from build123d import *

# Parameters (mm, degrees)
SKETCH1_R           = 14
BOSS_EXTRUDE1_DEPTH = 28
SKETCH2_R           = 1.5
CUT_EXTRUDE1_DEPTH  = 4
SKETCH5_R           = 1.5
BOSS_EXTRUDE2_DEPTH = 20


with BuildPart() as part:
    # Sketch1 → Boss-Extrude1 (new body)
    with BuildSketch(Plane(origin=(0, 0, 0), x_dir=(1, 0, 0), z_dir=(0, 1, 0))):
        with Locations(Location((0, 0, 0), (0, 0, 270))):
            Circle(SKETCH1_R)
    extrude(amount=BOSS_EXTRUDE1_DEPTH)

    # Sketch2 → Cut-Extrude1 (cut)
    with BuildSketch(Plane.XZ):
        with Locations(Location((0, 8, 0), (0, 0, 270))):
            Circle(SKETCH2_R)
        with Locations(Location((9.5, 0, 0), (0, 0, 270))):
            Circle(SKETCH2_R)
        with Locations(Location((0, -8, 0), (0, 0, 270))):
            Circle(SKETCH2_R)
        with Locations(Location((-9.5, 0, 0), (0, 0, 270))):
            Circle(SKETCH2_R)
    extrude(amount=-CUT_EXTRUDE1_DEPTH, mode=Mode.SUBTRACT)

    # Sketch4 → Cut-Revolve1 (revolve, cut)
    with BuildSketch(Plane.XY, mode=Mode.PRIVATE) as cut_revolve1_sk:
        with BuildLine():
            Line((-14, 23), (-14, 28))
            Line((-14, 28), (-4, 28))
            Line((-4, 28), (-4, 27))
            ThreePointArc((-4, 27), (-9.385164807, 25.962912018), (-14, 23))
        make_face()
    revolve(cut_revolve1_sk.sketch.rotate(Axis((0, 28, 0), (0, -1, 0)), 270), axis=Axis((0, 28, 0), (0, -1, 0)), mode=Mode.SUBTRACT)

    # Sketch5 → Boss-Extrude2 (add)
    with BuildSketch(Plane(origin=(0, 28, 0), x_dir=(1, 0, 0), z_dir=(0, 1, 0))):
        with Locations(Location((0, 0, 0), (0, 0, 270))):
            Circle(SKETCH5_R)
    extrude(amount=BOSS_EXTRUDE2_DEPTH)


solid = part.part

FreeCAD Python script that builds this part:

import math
import FreeCAD as App
import Part
import Sketcher
from FreeCAD import Vector
Q = App.Units.Quantity

doc = App.newDocument("Part")
body = doc.addObject("PartDesign::Body", "Body")

# Sketch on XZ plane
sketch1 = body.newObject("Sketcher::SketchObject", "Sketch")
sketch1.AttachmentSupport = (doc.getObject("XZ_Plane"), [""])
sketch1.MapMode = "FlatFace"
sketch1.addGeometry(Part.Circle(Vector(0, 0, 0), Vector(0, 0, 1), 14), False)
sketch1.addConstraint([
    Sketcher.Constraint("Coincident", 0, 3, -1, 1),
    Sketcher.Constraint("Diameter", 0, Q("28 mm")),
])
pad1 = body.newObject("PartDesign::Pad", "Pad")
pad1.Profile = sketch1
pad1.Length = 28
pad1.Reversed = True

# Sketch on XZ plane
sketch2 = body.newObject("Sketcher::SketchObject", "Sketch001")
sketch2.AttachmentSupport = (doc.getObject("XZ_Plane"), [""])
sketch2.MapMode = "FlatFace"
sketch2.addGeometry([
    Part.Circle(Vector(0, 8, 0), Vector(0, 0, 1), 1.5),
    Part.Circle(Vector(9.5, 0, 0), Vector(0, 0, 1), 1.5),
    Part.Circle(Vector(0, -8, 0), Vector(0, 0, 1), 1.5),
    Part.Circle(Vector(-9.5, 0, 0), Vector(0, 0, 1), 1.5),
], False)
sketch2.addConstraint([
    Sketcher.Constraint("Equal", 0, 1),
    Sketcher.Constraint("Equal", 1, 2),
    Sketcher.Constraint("Equal", 2, 3),
    Sketcher.Constraint("Symmetric", 0, 3, 2, 3, -1, 1),
    Sketcher.Constraint("Symmetric", 1, 3, 3, 3, -1, 1),
    Sketcher.Constraint("PointOnObject", 0, 3, -2),
    Sketcher.Constraint("PointOnObject", 1, 3, -1),
    Sketcher.Constraint("Diameter", 0, Q("3 mm")),
    Sketcher.Constraint("DistanceY", -1, 1, 0, 3, Q("8 mm")),
    Sketcher.Constraint("DistanceX", 3, 3, 1, 3, Q("19 mm")),
])
pocket1 = body.newObject("PartDesign::Pocket", "Pocket")
pocket1.Profile = sketch2
pocket1.Length = 4

# Sketch on XY plane
sketch3 = body.newObject("Sketcher::SketchObject", "Sketch002")
sketch3.AttachmentSupport = (doc.getObject("XY_Plane"), [""])
sketch3.MapMode = "FlatFace"
sketch3.addGeometry([
    Part.LineSegment(Vector(-14, 28, 0), Vector(-14, 23, 0)),
    Part.ArcOfCircle(Part.Circle(Vector(-4, 12.5, 0), Vector(0, 0, 1), 14.5), math.radians(90), math.radians(134)),
    Part.LineSegment(Vector(-4, 27, 0), Vector(-4, 28, 0)),
    Part.LineSegment(Vector(-4, 28, 0), Vector(-14, 28, 0)),
], False)
sketch3.addConstraint([
    Sketcher.Constraint("Coincident", 0, 2, 1, 2),
    Sketcher.Constraint("Coincident", 1, 1, 2, 1),
    Sketcher.Constraint("Coincident", 2, 2, 3, 1),
    Sketcher.Constraint("Coincident", 3, 2, 0, 1),
    Sketcher.Constraint("Vertical", 0),
    Sketcher.Constraint("Vertical", 2),
    Sketcher.Constraint("Horizontal", 3),
    Sketcher.Constraint("Radius", 1, Q("14.5 mm")),
    Sketcher.Constraint("DistanceX", 3, 2, 3, 1, Q("10 mm")),
    Sketcher.Constraint("DistanceY", 0, 2, 0, 1, Q("5 mm")),
    Sketcher.Constraint("DistanceY", 2, 1, 2, 2, Q("1 mm")),
    Sketcher.Constraint("DistanceX", 1, 3, -1, 1, Q("4 mm")),
    Sketcher.Constraint("DistanceY", -1, 1, 0, 2, Q("23 mm")),
])
groove = body.newObject("PartDesign::Groove", "Groove")
groove.Profile = sketch3
groove.ReferenceAxis = (sketch3, ["V_Axis"])
groove.Angle = 360

# Sketch on XZ plane
sketch4 = body.newObject("Sketcher::SketchObject", "Sketch003")
sketch4.AttachmentSupport = (doc.getObject("XZ_Plane"), [""])
sketch4.MapMode = "FlatFace"
sketch4.AttachmentOffset = App.Placement(Vector(0, 0, -28), App.Rotation())
sketch4.addGeometry(Part.Circle(Vector(0, 0, 0), Vector(0, 0, 1), 1.5), False)
sketch4.addConstraint([
    Sketcher.Constraint("Coincident", 0, 3, -1, 1),
    Sketcher.Constraint("Diameter", 0, Q("3 mm")),
])
pad2 = body.newObject("PartDesign::Pad", "Pad001")
pad2.Profile = sketch4
pad2.Length = 20
pad2.Reversed = True

doc.recompute()
